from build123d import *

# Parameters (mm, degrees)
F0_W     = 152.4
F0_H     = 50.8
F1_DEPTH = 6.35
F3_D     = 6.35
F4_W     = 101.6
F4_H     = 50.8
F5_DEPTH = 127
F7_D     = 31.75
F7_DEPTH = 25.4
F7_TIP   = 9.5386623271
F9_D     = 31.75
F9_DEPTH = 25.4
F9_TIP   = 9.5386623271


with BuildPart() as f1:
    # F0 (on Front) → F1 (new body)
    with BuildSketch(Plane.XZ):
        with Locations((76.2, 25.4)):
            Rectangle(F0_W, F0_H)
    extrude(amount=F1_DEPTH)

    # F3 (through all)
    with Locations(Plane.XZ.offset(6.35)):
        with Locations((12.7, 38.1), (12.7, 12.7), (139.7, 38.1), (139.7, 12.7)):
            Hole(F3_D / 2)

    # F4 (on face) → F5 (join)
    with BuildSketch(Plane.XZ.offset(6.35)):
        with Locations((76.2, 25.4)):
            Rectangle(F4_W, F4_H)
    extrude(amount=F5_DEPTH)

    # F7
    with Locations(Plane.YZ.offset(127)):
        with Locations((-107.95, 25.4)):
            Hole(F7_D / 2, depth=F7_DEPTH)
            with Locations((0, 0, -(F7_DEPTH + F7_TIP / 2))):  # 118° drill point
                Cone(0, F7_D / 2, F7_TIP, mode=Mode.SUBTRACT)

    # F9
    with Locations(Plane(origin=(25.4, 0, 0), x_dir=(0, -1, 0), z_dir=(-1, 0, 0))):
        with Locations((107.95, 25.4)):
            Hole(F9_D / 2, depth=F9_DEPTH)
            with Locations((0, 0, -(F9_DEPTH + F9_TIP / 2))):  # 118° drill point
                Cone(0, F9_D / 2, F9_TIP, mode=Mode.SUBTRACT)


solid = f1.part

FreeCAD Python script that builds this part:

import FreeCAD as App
import Part
import Sketcher
Q = App.Units.Quantity


def add_polygon(sketch, points):
    """Adds a closed chain of lines whose ends are joined by coincident constraints."""
    first, n = sketch.GeometryCount, len(points)
    for a, b in zip(points, points[1:] + points[:1]):
        sketch.addGeometry(Part.LineSegment(App.Vector(*a, 0), App.Vector(*b, 0)), False)
    for i in range(n):
        sketch.addConstraint(Sketcher.Constraint("Coincident", first + i, 2, first + (i + 1) % n, 1))

doc = App.newDocument("Part")
body = doc.addObject("PartDesign::Body", "Body")

# Sketch on XZ plane
sketch1 = body.newObject("Sketcher::SketchObject", "Sketch")
sketch1.AttachmentSupport = (doc.getObject("XZ_Plane"), [""])
sketch1.MapMode = "FlatFace"
add_polygon(sketch1, [(0, 50.8), (0, 0), (152.4, 0), (152.4, 50.8)])  # lines 0-3
sketch1.addConstraint(Sketcher.Constraint("Vertical", 0))
sketch1.addConstraint(Sketcher.Constraint("Horizontal", 1))
sketch1.addConstraint(Sketcher.Constraint("Vertical", 2))
sketch1.addConstraint(Sketcher.Constraint("Horizontal", 3))
sketch1.addConstraint(Sketcher.Constraint("Coincident", 0, 2, -1, 1))
sketch1.addConstraint(Sketcher.Constraint("DistanceX", 1, 1, 1, 2, Q("6 in")))
sketch1.addConstraint(Sketcher.Constraint("DistanceY", 0, 2, 0, 1, Q("2 in")))
pad1 = body.newObject("PartDesign::Pad", "Pad")
pad1.Profile = sketch1
pad1.Length = Q("0.25 in")

# Sketch on XZ plane
sketch2 = body.newObject("Sketcher::SketchObject", "Sketch001")
sketch2.AttachmentSupport = (doc.getObject("XZ_Plane"), [""])
sketch2.MapMode = "FlatFace"
sketch2.AttachmentOffset = App.Placement(App.Vector(0, 0, 0.25 * 25.4), App.Rotation())
sketch2.addGeometry(Part.Circle(App.Vector(12.7, 38.1, 0), App.Vector(0, 0, 1), 3.175), False)
sketch2.addGeometry(Part.Circle(App.Vector(12.7, 12.7, 0), App.Vector(0, 0, 1), 3.175), False)
sketch2.addGeometry(Part.Circle(App.Vector(139.7, 38.1, 0), App.Vector(0, 0, 1), 3.175), False)
sketch2.addGeometry(Part.Circle(App.Vector(139.7, 12.7, 0), App.Vector(0, 0, 1), 3.175), False)
sketch2.addConstraint(Sketcher.Constraint("Equal", 0, 1))
sketch2.addConstraint(Sketcher.Constraint("Equal", 1, 2))
sketch2.addConstraint(Sketcher.Constraint("Equal", 2, 3))
sketch2.addConstraint(Sketcher.Constraint("Horizontal", 0, 3, 2, 3))
sketch2.addConstraint(Sketcher.Constraint("Horizontal", 1, 3, 3, 3))
sketch2.addConstraint(Sketcher.Constraint("Vertical", 0, 3, 1, 3))
sketch2.addConstraint(Sketcher.Constraint("Vertical", 2, 3, 3, 3))
sketch2.addConstraint(Sketcher.Constraint("Diameter", 0, Q("0.25 in")))
sketch2.addConstraint(Sketcher.Constraint("DistanceY", 1, 3, 0, 3, Q("1 in")))
sketch2.addConstraint(Sketcher.Constraint("DistanceX", 0, 3, 2, 3, Q("5 in")))
sketch2.addConstraint(Sketcher.Constraint("DistanceX", -1, 1, 0, 3, Q("0.5 in")))
sketch2.addConstraint(Sketcher.Constraint("DistanceY", -1, 1, 0, 3, Q("1.5 in")))
doc.recompute()
hole = body.newObject("PartDesign::Hole", "Hole")
hole.Profile = sketch2
hole.ThreadType = "None"
hole.Diameter = Q("0.25 in")
hole.DepthType = "ThroughAll"

# Sketch on XZ plane
sketch3 = body.newObject("Sketcher::SketchObject", "Sketch002")
sketch3.AttachmentSupport = (doc.getObject("XZ_Plane"), [""])
sketch3.MapMode = "FlatFace"
sketch3.AttachmentOffset = App.Placement(App.Vector(0, 0, 0.25 * 25.4), App.Rotation())
add_polygon(sketch3, [(25.4, 50.8), (25.4, 0), (127, 0), (127, 50.8)])  # lines 0-3
sketch3.addConstraint(Sketcher.Constraint("Vertical", 0))
sketch3.addConstraint(Sketcher.Constraint("Horizontal", 1))
sketch3.addConstraint(Sketcher.Constraint("Vertical", 2))
sketch3.addConstraint(Sketcher.Constraint("Horizontal", 3))
sketch3.addConstraint(Sketcher.Constraint("PointOnObject", 0, 2, -1))
sketch3.addConstraint(Sketcher.Constraint("DistanceX", 1, 1, 1, 2, Q("4 in")))
sketch3.addConstraint(Sketcher.Constraint("DistanceY", 0, 2, 0, 1, Q("2 in")))
sketch3.addConstraint(Sketcher.Constraint("DistanceX", -1, 1, 0, 2, Q("1 in")))
pad2 = body.newObject("PartDesign::Pad", "Pad001")
pad2.Profile = sketch3
pad2.Length = Q("5 in")

# Sketch on YZ plane
sketch4 = body.newObject("Sketcher::SketchObject", "Sketch003")
sketch4.AttachmentSupport = (doc.getObject("YZ_Plane"), [""])
sketch4.MapMode = "FlatFace"
sketch4.AttachmentOffset = App.Placement(App.Vector(0, 0, 5 * 25.4), App.Rotation())
sketch4.addGeometry(Part.Circle(App.Vector(-107.95, 25.4, 0), App.Vector(0, 0, 1), 15.875), False)
sketch4.addConstraint(Sketcher.Constraint("Diameter", 0, Q("1.25 in")))
sketch4.addConstraint(Sketcher.Constraint("DistanceY", -1, 1, 0, 3, Q("1 in")))
sketch4.addConstraint(Sketcher.Constraint("DistanceX", 0, 3, -1, 1, Q("4.25 in")))
doc.recompute()
hole2 = body.newObject("PartDesign::Hole", "Hole001")
hole2.Profile = sketch4
hole2.ThreadType = "None"
hole2.Diameter = Q("1.25 in")
hole2.DepthType = "Dimension"
hole2.Depth = Q("1 in")
hole2.DrillPoint = "Angled"
hole2.DrillPointAngle = 118

# Sketch on YZ plane
sketch5 = body.newObject("Sketcher::SketchObject", "Sketch004")
sketch5.AttachmentSupport = (doc.getObject("YZ_Plane"), [""])
sketch5.MapMode = "FlatFace"
sketch5.AttachmentOffset = App.Placement(App.Vector(0, 0, 1 * 25.4), App.Rotation())
sketch5.addGeometry(Part.Circle(App.Vector(-107.95, 25.4, 0), App.Vector(0, 0, 1), 15.875), False)
sketch5.addConstraint(Sketcher.Constraint("Diameter", 0, Q("1.25 in")))
sketch5.addConstraint(Sketcher.Constraint("DistanceY", -1, 1, 0, 3, Q("1 in")))
sketch5.addConstraint(Sketcher.Constraint("DistanceX", 0, 3, -1, 1, Q("4.25 in")))
doc.recompute()
hole3 = body.newObject("PartDesign::Hole", "Hole002")
hole3.Profile = sketch5
hole3.ThreadType = "None"
hole3.Diameter = Q("1.25 in")
hole3.DepthType = "Dimension"
hole3.Depth = Q("1 in")
hole3.DrillPoint = "Angled"
hole3.DrillPointAngle = 118
hole3.Reversed = True

doc.recompute()
